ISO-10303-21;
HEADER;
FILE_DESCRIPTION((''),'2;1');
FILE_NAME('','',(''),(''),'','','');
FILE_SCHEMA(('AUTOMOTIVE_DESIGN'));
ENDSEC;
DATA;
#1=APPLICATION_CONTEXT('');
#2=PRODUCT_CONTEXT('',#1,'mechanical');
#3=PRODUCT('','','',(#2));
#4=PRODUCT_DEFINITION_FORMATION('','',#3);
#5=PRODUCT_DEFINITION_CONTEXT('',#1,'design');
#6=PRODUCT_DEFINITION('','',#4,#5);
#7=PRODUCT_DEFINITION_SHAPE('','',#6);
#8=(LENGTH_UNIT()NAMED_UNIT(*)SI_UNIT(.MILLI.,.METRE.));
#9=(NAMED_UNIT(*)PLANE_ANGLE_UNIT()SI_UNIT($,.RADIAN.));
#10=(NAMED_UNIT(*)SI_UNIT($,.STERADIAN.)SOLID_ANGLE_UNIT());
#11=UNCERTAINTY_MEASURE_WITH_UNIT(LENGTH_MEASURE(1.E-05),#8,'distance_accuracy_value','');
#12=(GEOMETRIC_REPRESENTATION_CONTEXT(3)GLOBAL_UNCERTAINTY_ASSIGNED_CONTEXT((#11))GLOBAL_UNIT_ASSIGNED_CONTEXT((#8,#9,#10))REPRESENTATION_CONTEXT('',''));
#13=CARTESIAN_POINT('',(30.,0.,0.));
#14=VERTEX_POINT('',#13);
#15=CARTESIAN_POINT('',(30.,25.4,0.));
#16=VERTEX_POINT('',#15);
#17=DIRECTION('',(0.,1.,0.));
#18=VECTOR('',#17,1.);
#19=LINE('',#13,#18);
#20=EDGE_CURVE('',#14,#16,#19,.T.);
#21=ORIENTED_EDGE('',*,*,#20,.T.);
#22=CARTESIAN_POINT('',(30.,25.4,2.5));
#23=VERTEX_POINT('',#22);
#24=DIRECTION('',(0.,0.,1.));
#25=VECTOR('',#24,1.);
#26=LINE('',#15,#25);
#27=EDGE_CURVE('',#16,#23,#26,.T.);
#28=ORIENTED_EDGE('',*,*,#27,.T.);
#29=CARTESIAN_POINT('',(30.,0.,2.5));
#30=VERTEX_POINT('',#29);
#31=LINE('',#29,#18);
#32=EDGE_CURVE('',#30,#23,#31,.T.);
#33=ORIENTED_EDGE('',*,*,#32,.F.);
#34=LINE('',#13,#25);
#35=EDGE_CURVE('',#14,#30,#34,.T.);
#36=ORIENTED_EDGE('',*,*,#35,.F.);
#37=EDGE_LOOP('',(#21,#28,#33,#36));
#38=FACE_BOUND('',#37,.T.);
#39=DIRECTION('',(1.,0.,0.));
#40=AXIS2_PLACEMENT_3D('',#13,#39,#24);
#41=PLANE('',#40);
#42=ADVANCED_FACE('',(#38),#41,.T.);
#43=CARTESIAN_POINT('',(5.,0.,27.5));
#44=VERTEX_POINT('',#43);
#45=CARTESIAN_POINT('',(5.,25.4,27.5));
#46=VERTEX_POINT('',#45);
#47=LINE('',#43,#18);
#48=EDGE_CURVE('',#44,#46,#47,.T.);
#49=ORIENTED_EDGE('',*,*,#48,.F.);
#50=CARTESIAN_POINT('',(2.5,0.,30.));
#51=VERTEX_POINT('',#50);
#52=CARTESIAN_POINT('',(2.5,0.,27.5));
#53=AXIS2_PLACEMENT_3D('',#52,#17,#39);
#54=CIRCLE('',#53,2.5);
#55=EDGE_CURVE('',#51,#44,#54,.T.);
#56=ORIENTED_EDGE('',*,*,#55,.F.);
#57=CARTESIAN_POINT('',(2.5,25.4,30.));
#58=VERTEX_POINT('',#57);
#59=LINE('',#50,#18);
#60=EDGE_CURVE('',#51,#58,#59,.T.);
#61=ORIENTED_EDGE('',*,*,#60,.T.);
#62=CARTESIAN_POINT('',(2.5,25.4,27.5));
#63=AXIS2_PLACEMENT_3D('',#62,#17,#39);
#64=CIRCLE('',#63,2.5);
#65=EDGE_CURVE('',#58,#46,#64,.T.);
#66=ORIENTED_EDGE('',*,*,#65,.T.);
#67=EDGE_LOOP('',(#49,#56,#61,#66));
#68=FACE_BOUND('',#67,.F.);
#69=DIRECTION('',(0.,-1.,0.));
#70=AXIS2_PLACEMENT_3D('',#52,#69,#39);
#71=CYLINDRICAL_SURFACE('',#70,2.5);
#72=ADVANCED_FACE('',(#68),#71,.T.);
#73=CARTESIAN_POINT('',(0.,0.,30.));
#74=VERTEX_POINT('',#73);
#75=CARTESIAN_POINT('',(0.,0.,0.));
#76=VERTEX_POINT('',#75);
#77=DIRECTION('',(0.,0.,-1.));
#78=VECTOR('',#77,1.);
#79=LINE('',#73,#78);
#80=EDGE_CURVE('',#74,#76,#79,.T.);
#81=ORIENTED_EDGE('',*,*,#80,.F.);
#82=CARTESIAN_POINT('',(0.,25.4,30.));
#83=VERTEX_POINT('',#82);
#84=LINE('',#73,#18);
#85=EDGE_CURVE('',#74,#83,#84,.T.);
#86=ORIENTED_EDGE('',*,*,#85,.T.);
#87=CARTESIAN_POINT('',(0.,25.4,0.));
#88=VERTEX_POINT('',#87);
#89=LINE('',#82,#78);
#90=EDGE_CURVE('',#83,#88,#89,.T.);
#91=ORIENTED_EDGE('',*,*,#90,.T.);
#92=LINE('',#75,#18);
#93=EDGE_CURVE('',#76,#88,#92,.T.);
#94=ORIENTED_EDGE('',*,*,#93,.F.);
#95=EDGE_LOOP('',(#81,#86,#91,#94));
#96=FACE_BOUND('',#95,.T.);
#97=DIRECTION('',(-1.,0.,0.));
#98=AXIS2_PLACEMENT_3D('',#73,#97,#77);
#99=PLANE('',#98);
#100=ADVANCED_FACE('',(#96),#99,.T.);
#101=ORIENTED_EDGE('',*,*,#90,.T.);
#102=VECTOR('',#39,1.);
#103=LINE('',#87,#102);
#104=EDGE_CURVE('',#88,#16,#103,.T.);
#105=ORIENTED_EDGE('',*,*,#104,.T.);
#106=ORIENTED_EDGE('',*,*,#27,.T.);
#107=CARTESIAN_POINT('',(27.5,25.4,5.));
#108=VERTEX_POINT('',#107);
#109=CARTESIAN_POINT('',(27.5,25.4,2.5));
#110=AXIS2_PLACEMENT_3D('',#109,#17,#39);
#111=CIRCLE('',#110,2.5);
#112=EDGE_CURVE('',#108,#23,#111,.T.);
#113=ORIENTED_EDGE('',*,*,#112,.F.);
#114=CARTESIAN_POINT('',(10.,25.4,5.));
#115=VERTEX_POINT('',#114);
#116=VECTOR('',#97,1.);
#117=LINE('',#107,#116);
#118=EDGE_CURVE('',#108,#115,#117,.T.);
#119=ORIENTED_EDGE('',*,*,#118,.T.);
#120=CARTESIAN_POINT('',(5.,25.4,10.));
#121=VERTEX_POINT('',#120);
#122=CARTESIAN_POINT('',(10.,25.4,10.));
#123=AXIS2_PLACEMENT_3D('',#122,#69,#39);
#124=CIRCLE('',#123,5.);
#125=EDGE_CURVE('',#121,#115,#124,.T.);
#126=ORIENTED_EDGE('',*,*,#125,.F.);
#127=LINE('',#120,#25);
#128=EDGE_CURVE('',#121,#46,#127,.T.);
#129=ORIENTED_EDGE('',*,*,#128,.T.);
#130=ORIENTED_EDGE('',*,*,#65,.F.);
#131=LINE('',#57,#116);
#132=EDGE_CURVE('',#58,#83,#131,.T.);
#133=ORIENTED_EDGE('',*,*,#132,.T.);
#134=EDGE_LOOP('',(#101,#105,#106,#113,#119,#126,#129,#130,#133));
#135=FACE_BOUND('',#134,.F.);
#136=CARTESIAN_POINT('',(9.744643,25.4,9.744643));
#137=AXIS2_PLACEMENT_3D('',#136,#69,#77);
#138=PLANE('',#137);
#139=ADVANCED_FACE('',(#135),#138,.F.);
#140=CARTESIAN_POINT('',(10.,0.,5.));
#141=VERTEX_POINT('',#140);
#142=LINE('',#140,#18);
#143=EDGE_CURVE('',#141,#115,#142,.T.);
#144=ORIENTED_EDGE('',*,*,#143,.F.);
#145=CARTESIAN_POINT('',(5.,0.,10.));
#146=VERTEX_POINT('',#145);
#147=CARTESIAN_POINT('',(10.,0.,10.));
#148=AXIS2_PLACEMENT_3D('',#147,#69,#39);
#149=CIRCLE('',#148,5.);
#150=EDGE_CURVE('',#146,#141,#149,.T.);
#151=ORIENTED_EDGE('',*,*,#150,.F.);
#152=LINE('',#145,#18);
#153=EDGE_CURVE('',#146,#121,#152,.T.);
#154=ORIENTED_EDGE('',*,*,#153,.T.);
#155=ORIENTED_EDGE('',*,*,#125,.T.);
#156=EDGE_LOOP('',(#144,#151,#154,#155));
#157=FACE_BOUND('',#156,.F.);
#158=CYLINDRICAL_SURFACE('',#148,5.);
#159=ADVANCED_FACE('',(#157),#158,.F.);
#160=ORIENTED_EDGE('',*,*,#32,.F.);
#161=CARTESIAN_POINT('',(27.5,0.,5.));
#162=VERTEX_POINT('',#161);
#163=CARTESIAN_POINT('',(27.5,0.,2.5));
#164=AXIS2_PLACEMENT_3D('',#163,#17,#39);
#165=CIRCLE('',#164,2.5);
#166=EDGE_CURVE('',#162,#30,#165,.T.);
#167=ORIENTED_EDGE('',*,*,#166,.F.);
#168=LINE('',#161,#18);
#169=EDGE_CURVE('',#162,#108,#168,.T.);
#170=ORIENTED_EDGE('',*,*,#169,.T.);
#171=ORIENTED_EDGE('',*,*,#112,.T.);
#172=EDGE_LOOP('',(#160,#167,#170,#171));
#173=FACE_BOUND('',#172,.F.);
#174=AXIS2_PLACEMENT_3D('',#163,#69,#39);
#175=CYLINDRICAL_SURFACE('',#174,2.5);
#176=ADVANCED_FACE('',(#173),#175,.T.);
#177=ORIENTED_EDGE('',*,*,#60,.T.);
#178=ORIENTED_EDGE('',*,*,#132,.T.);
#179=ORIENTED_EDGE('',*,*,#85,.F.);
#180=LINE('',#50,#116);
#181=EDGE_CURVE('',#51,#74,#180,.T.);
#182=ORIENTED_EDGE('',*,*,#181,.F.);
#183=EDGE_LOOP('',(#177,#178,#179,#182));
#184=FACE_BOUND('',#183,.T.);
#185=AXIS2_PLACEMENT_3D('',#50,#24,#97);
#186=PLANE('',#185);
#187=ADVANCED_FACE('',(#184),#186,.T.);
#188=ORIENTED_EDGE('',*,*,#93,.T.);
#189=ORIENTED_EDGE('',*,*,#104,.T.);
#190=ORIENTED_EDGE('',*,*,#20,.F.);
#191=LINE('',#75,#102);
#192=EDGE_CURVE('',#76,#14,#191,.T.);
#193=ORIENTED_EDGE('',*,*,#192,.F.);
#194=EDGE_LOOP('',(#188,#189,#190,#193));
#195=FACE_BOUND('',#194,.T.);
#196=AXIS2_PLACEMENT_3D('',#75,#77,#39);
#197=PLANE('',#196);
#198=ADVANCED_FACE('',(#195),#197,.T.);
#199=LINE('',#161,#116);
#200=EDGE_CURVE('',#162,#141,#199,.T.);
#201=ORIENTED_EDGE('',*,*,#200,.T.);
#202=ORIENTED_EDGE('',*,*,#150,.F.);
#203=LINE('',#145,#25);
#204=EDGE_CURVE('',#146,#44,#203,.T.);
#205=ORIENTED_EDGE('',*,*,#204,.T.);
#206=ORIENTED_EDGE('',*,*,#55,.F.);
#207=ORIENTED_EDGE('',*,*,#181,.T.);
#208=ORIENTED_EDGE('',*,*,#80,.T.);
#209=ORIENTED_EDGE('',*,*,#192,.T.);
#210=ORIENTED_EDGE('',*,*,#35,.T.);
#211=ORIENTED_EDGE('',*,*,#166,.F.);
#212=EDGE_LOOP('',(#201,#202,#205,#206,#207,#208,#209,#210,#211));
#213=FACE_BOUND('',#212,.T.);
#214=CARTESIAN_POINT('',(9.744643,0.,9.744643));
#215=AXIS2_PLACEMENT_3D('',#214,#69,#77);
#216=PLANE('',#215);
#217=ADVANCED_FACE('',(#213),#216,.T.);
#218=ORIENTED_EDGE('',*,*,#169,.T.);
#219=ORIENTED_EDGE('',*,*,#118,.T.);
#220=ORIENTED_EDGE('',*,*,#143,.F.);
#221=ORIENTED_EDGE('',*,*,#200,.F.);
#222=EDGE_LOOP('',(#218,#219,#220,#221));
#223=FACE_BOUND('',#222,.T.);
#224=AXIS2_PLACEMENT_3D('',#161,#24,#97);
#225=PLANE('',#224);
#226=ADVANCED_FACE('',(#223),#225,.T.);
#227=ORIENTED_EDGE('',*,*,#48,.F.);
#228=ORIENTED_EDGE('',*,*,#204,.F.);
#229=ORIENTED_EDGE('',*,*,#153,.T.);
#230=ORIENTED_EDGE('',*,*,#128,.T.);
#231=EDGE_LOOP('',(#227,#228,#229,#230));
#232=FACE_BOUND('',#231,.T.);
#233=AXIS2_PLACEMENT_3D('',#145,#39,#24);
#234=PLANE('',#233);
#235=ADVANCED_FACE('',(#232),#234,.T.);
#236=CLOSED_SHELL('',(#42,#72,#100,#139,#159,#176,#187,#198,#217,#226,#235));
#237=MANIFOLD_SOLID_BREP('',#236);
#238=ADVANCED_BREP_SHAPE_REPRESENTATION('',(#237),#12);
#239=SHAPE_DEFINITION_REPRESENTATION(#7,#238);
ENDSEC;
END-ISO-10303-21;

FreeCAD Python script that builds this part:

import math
import FreeCAD as App
import Part
import Sketcher
from FreeCAD import Vector

doc = App.newDocument("Part")
params = doc.addObject("Spreadsheet::Sheet", "Params")
for row, (alias, value) in enumerate([
    ("sketch1_radius", "5 mm"),
    ("sketch1_radius2", "2.5 mm"),
    ("sketch1_width", "30 mm"),
    ("sketch1_width2", "17.5 mm"),
    ("pad1_length", "25.4 mm"),
], start=1):
    params.set(f"A{row}", alias)
    params.set(f"B{row}", "=" + value)
    params.setAlias(f"B{row}", alias)

body = doc.addObject("PartDesign::Body", "Body")

# Sketch on XZ plane
sketch1 = body.newObject("Sketcher::SketchObject", "Sketch")
sketch1.AttachmentSupport = (doc.getObject("XZ_Plane"), [""])
sketch1.MapMode = "FlatFace"
sketch1.addGeometry([
    Part.LineSegment(Vector(0, 0, 0), Vector(30, 0, 0)),  # 0
    Part.LineSegment(Vector(30, 0, 0), Vector(30, 2.5, 0)),  # 1
    Part.ArcOfCircle(Part.Circle(Vector(27.5, 2.5, 0), Vector(0, 0, 1), 2.5), math.radians(0), math.radians(90)),  # 2
    Part.LineSegment(Vector(27.5, 5, 0), Vector(10, 5, 0)),  # 3
    Part.ArcOfCircle(Part.Circle(Vector(10, 10, 0), Vector(0, 0, 1), 5), math.radians(180), math.radians(270)),  # 4
    Part.LineSegment(Vector(5, 10, 0), Vector(5, 27.5, 0)),  # 5
    Part.ArcOfCircle(Part.Circle(Vector(2.5, 27.5, 0), Vector(0, 0, 1), 2.5), math.radians(0), math.radians(90)),  # 6
    Part.LineSegment(Vector(2.5, 30, 0), Vector(0, 30, 0)),  # 7
    Part.LineSegment(Vector(0, 30, 0), Vector(0, 0, 0)),  # 8
], False)
sketch1.addConstraint([
    Sketcher.Constraint("Coincident", 0, 2, 1, 1),
    Sketcher.Constraint("Tangent", 1, 2, 2, 1),
    Sketcher.Constraint("Tangent", 2, 2, 3, 1),
    Sketcher.Constraint("Tangent", 3, 2, 4, 2),
    Sketcher.Constraint("Tangent", 4, 1, 5, 1),
    Sketcher.Constraint("Tangent", 5, 2, 6, 1),
    Sketcher.Constraint("Tangent", 6, 2, 7, 1),
    Sketcher.Constraint("Coincident", 7, 2, 8, 1),
    Sketcher.Constraint("Coincident", 8, 2, 0, 1),
    Sketcher.Constraint("Horizontal", 0),
    Sketcher.Constraint("Vertical", 1),
    Sketcher.Constraint("Horizontal", 3),
    Sketcher.Constraint("Vertical", 5),
    Sketcher.Constraint("Horizontal", 7),
    Sketcher.Constraint("Vertical", 8),
    Sketcher.Constraint("Coincident", 8, 2, -1, 1),
    Sketcher.Constraint("Equal", 2, 6),
    Sketcher.Constraint("Equal", 7, 1),
    Sketcher.Constraint("Equal", 3, 5),
    Sketcher.Constraint("Radius", 4, 5.0),
    Sketcher.Constraint("Radius", 2, 2.5),
    Sketcher.Constraint("DistanceX", 0, 1, 0, 2, 30.0),
    Sketcher.Constraint("DistanceX", 3, 2, 3, 1, 17.5),
])
sketch1.setExpression("Constraints[19]", "Params.sketch1_radius")
sketch1.setExpression("Constraints[20]", "Params.sketch1_radius2")
sketch1.setExpression("Constraints[21]", "Params.sketch1_width")
sketch1.setExpression("Constraints[22]", "Params.sketch1_width2")
pad1 = body.newObject("PartDesign::Pad", "Pad")
pad1.Profile = sketch1
pad1.setExpression("Length", "Params.pad1_length")
pad1.Reversed = True

doc.recompute()
